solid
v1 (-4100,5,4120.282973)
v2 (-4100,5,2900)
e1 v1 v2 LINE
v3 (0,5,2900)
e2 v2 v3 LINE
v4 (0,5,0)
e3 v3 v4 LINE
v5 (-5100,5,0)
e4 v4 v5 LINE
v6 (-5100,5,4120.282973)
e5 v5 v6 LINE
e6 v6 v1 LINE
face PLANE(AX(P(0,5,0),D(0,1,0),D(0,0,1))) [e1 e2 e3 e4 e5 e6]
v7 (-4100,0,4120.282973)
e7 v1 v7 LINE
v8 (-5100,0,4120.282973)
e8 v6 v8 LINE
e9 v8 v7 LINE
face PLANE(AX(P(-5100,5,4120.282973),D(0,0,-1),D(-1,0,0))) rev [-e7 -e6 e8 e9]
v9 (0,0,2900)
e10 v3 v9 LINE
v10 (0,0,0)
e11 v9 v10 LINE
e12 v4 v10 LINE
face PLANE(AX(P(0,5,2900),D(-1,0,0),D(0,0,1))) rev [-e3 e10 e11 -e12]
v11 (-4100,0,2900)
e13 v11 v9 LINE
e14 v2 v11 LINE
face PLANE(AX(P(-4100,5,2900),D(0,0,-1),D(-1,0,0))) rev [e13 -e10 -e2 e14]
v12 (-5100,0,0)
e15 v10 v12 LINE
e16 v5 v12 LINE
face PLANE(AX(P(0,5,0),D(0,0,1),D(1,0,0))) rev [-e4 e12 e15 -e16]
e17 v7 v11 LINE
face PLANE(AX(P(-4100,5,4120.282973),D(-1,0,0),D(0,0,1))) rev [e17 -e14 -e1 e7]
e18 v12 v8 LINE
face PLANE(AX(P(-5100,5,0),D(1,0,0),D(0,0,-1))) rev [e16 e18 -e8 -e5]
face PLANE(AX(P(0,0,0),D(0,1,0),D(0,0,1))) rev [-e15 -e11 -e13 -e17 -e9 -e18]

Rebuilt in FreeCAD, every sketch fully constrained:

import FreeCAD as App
import Part
import Sketcher
from FreeCAD import Vector
Q = App.Units.Quantity


def add_polygon(sketch, points):
    """Adds a closed chain of lines whose ends are joined by coincident constraints."""
    first, n = sketch.GeometryCount, len(points)
    for a, b in zip(points, points[1:] + points[:1]):
        sketch.addGeometry(Part.LineSegment(App.Vector(*a, 0), App.Vector(*b, 0)), False)
    for i in range(n):
        sketch.addConstraint(Sketcher.Constraint("Coincident", first + i, 2, first + (i + 1) % n, 1))

doc = App.newDocument("Part")
body = doc.addObject("PartDesign::Body", "Body")

sketch1 = body.newObject("Sketcher::SketchObject", "Sketch")
sketch1.AttachmentSupport = (doc.getObject("XZ_Plane"), [""])
sketch1.MapMode = "FlatFace"
add_polygon(sketch1, [(-4100, 4120.282973), (-4100, 2900), (0, 2900), (0, 0), (-5100, 0), (-5100, 4120.282973)])
sketch1.addConstraint([
    Sketcher.Constraint("Vertical", 0),
    Sketcher.Constraint("Horizontal", 1),
    Sketcher.Constraint("Vertical", 2),
    Sketcher.Constraint("Horizontal", 3),
    Sketcher.Constraint("Vertical", 4),
    Sketcher.Constraint("Horizontal", 5),
    Sketcher.Constraint("Coincident", 2, 2, -1, 1),
    Sketcher.Constraint("DistanceX", 1, 1, 1, 2, Q("4100 mm")),
    Sketcher.Constraint("DistanceX", 3, 2, 3, 1, Q("5100 mm")),
    Sketcher.Constraint("DistanceY", 2, 2, 2, 1, Q("2900 mm")),
    Sketcher.Constraint("DistanceY", 0, 2, 0, 1, Q("1220.282973 mm")),
])
pad1 = body.newObject("PartDesign::Pad", "Pad")
pad1.Profile = sketch1
pad1.Length = 5
pad1.Reversed = True

doc.recompute()
